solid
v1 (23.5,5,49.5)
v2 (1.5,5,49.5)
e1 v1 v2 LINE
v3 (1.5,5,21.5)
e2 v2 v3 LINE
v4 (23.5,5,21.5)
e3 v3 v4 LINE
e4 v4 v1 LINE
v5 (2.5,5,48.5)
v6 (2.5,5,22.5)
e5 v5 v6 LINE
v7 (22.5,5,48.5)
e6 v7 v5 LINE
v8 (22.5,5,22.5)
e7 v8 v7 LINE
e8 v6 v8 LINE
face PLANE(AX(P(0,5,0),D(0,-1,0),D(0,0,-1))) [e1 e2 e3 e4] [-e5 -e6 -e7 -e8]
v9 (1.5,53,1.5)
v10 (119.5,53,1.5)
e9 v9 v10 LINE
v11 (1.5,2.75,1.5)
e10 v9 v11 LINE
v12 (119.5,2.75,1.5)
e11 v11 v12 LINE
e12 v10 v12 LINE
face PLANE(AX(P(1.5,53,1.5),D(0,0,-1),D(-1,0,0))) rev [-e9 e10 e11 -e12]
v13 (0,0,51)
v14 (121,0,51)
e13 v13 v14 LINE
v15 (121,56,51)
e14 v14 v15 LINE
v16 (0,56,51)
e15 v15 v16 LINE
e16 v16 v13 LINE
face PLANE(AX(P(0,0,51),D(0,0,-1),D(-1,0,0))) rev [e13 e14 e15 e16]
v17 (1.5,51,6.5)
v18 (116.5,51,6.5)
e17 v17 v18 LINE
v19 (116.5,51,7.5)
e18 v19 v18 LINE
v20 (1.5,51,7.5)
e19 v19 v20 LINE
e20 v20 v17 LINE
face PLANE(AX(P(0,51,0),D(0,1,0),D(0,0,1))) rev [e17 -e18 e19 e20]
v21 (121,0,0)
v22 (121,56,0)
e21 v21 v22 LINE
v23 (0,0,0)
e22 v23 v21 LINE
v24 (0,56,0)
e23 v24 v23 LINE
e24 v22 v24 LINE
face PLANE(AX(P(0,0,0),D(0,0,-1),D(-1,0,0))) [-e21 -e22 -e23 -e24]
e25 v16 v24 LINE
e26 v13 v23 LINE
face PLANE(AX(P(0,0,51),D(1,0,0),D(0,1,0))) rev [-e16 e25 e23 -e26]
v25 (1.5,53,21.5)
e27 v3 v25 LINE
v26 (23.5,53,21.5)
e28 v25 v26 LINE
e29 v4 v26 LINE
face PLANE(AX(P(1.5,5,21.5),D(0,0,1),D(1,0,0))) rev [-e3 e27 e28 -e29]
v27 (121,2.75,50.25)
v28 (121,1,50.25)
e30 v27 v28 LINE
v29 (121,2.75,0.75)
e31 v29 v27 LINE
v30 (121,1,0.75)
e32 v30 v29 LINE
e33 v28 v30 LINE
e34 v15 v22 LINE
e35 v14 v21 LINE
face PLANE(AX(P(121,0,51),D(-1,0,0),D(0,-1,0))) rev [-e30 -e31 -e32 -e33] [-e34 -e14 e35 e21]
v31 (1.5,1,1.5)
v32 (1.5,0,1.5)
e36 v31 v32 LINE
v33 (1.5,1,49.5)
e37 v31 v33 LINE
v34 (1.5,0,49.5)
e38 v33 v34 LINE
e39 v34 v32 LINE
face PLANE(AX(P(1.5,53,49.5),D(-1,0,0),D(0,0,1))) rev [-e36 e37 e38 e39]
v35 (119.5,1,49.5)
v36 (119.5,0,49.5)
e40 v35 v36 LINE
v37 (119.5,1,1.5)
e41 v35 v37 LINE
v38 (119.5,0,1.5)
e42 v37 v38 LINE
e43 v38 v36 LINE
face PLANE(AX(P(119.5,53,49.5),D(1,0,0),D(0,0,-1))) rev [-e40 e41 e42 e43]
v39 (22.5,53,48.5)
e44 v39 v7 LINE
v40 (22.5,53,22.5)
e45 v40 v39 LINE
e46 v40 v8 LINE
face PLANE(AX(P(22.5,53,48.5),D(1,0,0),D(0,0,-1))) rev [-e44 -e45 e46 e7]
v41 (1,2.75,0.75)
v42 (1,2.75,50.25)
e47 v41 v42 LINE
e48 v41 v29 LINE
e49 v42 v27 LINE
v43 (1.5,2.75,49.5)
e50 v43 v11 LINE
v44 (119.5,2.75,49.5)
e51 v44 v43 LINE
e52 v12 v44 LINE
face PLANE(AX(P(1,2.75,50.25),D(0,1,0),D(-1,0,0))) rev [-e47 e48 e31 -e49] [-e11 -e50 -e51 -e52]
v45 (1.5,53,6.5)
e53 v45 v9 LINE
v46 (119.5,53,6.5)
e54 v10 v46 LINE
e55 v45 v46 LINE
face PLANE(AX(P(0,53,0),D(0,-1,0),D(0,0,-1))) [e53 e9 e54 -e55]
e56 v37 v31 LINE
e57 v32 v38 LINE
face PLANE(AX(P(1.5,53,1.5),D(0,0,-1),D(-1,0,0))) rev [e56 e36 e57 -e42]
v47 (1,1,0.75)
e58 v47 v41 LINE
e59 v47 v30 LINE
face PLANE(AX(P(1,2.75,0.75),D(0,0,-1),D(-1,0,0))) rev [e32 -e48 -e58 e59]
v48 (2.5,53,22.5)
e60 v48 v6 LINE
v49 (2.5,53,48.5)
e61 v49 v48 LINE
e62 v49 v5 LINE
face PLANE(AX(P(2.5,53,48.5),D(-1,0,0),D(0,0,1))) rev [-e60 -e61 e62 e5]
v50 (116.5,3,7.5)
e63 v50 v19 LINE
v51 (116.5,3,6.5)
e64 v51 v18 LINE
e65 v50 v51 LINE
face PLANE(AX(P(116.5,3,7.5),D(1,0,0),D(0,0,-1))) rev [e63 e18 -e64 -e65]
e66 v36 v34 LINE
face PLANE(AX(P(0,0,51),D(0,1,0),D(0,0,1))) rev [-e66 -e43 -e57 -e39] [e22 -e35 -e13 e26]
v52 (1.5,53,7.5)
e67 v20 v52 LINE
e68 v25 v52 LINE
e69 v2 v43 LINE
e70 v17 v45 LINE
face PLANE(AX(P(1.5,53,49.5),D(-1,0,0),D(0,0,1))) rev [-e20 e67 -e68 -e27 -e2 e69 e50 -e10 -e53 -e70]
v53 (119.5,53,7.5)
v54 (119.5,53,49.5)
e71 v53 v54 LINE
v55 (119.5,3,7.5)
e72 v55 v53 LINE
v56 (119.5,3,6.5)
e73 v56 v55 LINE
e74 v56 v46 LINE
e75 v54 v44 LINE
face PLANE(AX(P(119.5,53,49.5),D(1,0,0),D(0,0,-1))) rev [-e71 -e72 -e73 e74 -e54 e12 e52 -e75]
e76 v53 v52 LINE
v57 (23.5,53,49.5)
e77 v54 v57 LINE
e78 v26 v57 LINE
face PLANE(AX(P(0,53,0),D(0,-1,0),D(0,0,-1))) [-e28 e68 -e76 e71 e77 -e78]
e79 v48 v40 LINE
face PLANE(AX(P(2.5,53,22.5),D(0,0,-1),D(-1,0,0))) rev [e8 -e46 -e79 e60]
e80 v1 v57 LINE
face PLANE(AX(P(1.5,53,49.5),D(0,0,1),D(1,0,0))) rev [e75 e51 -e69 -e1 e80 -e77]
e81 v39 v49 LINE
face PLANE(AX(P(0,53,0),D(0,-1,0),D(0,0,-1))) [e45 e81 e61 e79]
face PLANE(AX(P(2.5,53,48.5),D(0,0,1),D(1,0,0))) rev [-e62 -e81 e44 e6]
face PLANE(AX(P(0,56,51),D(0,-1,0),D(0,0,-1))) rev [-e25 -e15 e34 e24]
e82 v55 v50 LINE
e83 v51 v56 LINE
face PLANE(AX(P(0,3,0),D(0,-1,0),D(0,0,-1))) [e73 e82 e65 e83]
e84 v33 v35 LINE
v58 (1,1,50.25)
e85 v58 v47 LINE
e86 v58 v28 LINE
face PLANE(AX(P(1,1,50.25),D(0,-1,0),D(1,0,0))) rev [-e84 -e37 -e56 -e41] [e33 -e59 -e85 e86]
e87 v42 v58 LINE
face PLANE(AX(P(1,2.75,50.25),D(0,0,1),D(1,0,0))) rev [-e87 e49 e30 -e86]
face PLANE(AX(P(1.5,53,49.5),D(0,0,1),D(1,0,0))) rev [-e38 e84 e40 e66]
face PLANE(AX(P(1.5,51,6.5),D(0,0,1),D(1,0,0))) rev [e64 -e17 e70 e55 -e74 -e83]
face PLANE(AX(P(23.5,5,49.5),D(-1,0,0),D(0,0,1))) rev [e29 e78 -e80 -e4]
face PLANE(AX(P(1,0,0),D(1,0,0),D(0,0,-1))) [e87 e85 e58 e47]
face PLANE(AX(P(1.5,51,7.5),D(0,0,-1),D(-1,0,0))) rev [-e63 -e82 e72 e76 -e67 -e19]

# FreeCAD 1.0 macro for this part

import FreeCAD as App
import Part
import Sketcher
Q = App.Units.Quantity

doc = App.newDocument("Part")
body = doc.addObject("PartDesign::Body", "Body")

# Sketch on XY plane
sketch1 = doc.addObject("Sketcher::SketchObject", "Sketch")
body.addObject(sketch1)
sketch1.AttachmentSupport = (doc.XY_Plane, [""])
sketch1.MapMode = "FlatFace"
sketch1.addGeometry([
    Part.LineSegment(App.Vector(0, 56, 0), App.Vector(0, 0, 0)),
    Part.LineSegment(App.Vector(0, 0, 0), App.Vector(121, 0, 0)),
    Part.LineSegment(App.Vector(121, 0, 0), App.Vector(121, 56, 0)),
    Part.LineSegment(App.Vector(121, 56, 0), App.Vector(0, 56, 0)),
], False)
sketch1.addConstraint([
    Sketcher.Constraint("Coincident", 0, 2, 1, 1),
    Sketcher.Constraint("Coincident", 1, 2, 2, 1),
    Sketcher.Constraint("Coincident", 2, 2, 3, 1),
    Sketcher.Constraint("Coincident", 3, 2, 0, 1),
    Sketcher.Constraint("Vertical", 0),
    Sketcher.Constraint("Horizontal", 1),
    Sketcher.Constraint("Vertical", 2),
    Sketcher.Constraint("Horizontal", 3),
    Sketcher.Constraint("Coincident", 0, 2, -1, 1),
    Sketcher.Constraint("DistanceX", 1, 1, 1, 2, Q("121 mm")),
    Sketcher.Constraint("DistanceY", 0, 2, 0, 1, Q("56 mm")),
])
pad1 = doc.addObject("PartDesign::Pad", "Pad")
body.addObject(pad1)
pad1.Profile = sketch1
pad1.Length = 51

# Sketch on XZ plane
sketch2 = doc.addObject("Sketcher::SketchObject", "Sketch001")
body.addObject(sketch2)
sketch2.AttachmentSupport = (doc.XZ_Plane, [""])
sketch2.MapMode = "FlatFace"
sketch2.addGeometry([
    Part.LineSegment(App.Vector(2, 50, 0), App.Vector(2, 2, 0)),
    Part.LineSegment(App.Vector(2, 2, 0), App.Vector(120, 2, 0)),
    Part.LineSegment(App.Vector(120, 2, 0), App.Vector(120, 50, 0)),
    Part.LineSegment(App.Vector(120, 50, 0), App.Vector(2, 50, 0)),
], False)
sketch2.addConstraint([
    Sketcher.Constraint("Coincident", 0, 2, 1, 1),
    Sketcher.Constraint("Coincident", 1, 2, 2, 1),
    Sketcher.Constraint("Coincident", 2, 2, 3, 1),
    Sketcher.Constraint("Coincident", 3, 2, 0, 1),
    Sketcher.Constraint("Vertical", 0),
    Sketcher.Constraint("Horizontal", 1),
    Sketcher.Constraint("Vertical", 2),
    Sketcher.Constraint("Horizontal", 3),
    Sketcher.Constraint("DistanceX", 1, 1, 1, 2, Q("118 mm")),
    Sketcher.Constraint("DistanceY", 0, 2, 0, 1, Q("48 mm")),
    Sketcher.Constraint("DistanceX", -1, 1, 0, 2, Q("1.5 mm")),
    Sketcher.Constraint("DistanceY", -1, 1, 0, 2, Q("1.5 mm")),
])
pocket1 = doc.addObject("PartDesign::Pocket", "Pocket")
body.addObject(pocket1)
pocket1.Profile = sketch2
pocket1.Length = 53

# Sketch on XZ plane
sketch3 = doc.addObject("Sketcher::SketchObject", "Sketch002")
body.addObject(sketch3)
sketch3.AttachmentSupport = (doc.XZ_Plane, [""])
sketch3.MapMode = "FlatFace"
sketch3.AttachmentOffset = App.Placement(App.Vector(0, 0, -53), App.Rotation())
sketch3.addGeometry([
    Part.LineSegment(App.Vector(2, 50, 0), App.Vector(2, 22, 0)),
    Part.LineSegment(App.Vector(2, 22, 0), App.Vector(24, 22, 0)),
    Part.LineSegment(App.Vector(24, 22, 0), App.Vector(24, 50, 0)),
    Part.LineSegment(App.Vector(24, 50, 0), App.Vector(2, 50, 0)),
], False)
sketch3.addConstraint([
    Sketcher.Constraint("Coincident", 0, 2, 1, 1),
    Sketcher.Constraint("Coincident", 1, 2, 2, 1),
    Sketcher.Constraint("Coincident", 2, 2, 3, 1),
    Sketcher.Constraint("Coincident", 3, 2, 0, 1),
    Sketcher.Constraint("Vertical", 0),
    Sketcher.Constraint("Horizontal", 1),
    Sketcher.Constraint("Vertical", 2),
    Sketcher.Constraint("Horizontal", 3),
    Sketcher.Constraint("DistanceX", 1, 1, 1, 2, Q("22 mm")),
    Sketcher.Constraint("DistanceY", 0, 2, 0, 1, Q("28 mm")),
    Sketcher.Constraint("DistanceX", -1, 1, 0, 2, Q("1.5 mm")),
    Sketcher.Constraint("DistanceY", -1, 1, 0, 2, Q("21.5 mm")),
])
pad2 = doc.addObject("PartDesign::Pad", "Pad001")
body.addObject(pad2)
pad2.Profile = sketch3
pad2.Length = 48

# Sketch on XZ plane
sketch4 = doc.addObject("Sketcher::SketchObject", "Sketch003")
body.addObject(sketch4)
sketch4.AttachmentSupport = (doc.XZ_Plane, [""])
sketch4.MapMode = "FlatFace"
sketch4.AttachmentOffset = App.Placement(App.Vector(0, 0, -5), App.Rotation())
sketch4.addGeometry([
    Part.LineSegment(App.Vector(2, 48, 0), App.Vector(2, 22, 0)),
    Part.LineSegment(App.Vector(2, 22, 0), App.Vector(22, 22, 0)),
    Part.LineSegment(App.Vector(22, 22, 0), App.Vector(22, 48, 0)),
    Part.LineSegment(App.Vector(22, 48, 0), App.Vector(2, 48, 0)),
], False)
sketch4.addConstraint([
    Sketcher.Constraint("Coincident", 0, 2, 1, 1),
    Sketcher.Constraint("Coincident", 1, 2, 2, 1),
    Sketcher.Constraint("Coincident", 2, 2, 3, 1),
    Sketcher.Constraint("Coincident", 3, 2, 0, 1),
    Sketcher.Constraint("Vertical", 0),
    Sketcher.Constraint("Horizontal", 1),
    Sketcher.Constraint("Vertical", 2),
    Sketcher.Constraint("Horizontal", 3),
    Sketcher.Constraint("DistanceX", 1, 1, 1, 2, Q("20 mm")),
    Sketcher.Constraint("DistanceY", 0, 2, 0, 1, Q("26 mm")),
    Sketcher.Constraint("DistanceX", -1, 1, 0, 2, Q("2.5 mm")),
    Sketcher.Constraint("DistanceY", -1, 1, 0, 2, Q("22.5 mm")),
])
pocket2 = doc.addObject("PartDesign::Pocket", "Pocket001")
body.addObject(pocket2)
pocket2.Profile = sketch4
pocket2.Length = 48

# Sketch on XZ plane
sketch5 = doc.addObject("Sketcher::SketchObject", "Sketch004")
body.addObject(sketch5)
sketch5.AttachmentSupport = (doc.XZ_Plane, [""])
sketch5.MapMode = "FlatFace"
sketch5.AttachmentOffset = App.Placement(App.Vector(0, 0, -53), App.Rotation())
sketch5.addGeometry([
    Part.LineSegment(App.Vector(1.5, 7.5, 0), App.Vector(1.5, 6.5, 0)),
    Part.LineSegment(App.Vector(1.5, 6.5, 0), App.Vector(119.5, 6.5, 0)),
    Part.LineSegment(App.Vector(119.5, 6.5, 0), App.Vector(119.5, 7.5, 0)),
    Part.LineSegment(App.Vector(119.5, 7.5, 0), App.Vector(1.5, 7.5, 0)),
], False)
sketch5.addConstraint([
    Sketcher.Constraint("Coincident", 0, 2, 1, 1),
    Sketcher.Constraint("Coincident", 1, 2, 2, 1),
    Sketcher.Constraint("Coincident", 2, 2, 3, 1),
    Sketcher.Constraint("Coincident", 3, 2, 0, 1),
    Sketcher.Constraint("Vertical", 0),
    Sketcher.Constraint("Horizontal", 1),
    Sketcher.Constraint("Vertical", 2),
    Sketcher.Constraint("Horizontal", 3),
    Sketcher.Constraint("DistanceX", 1, 1, 1, 2, Q("118 mm")),
    Sketcher.Constraint("DistanceY", 0, 2, 0, 1, Q("1 mm")),
    Sketcher.Constraint("DistanceX", -1, 1, 0, 2, Q("1.5 mm")),
    Sketcher.Constraint("DistanceY", -1, 1, 0, 2, Q("6.5 mm")),
])
pad3 = doc.addObject("PartDesign::Pad", "Pad002")
body.addObject(pad3)
pad3.Profile = sketch5
pad3.Length = 2

# Sketch on XZ plane
sketch6 = doc.addObject("Sketcher::SketchObject", "Sketch005")
body.addObject(sketch6)
sketch6.AttachmentSupport = (doc.XZ_Plane, [""])
sketch6.MapMode = "FlatFace"
sketch6.AttachmentOffset = App.Placement(App.Vector(0, 0, -51), App.Rotation())
sketch6.addGeometry([
    Part.LineSegment(App.Vector(116.5, 7.5, 0), App.Vector(116.5, 6.5, 0)),
    Part.LineSegment(App.Vector(116.5, 6.5, 0), App.Vector(119.5, 6.5, 0)),
    Part.LineSegment(App.Vector(119.5, 6.5, 0), App.Vector(119.5, 7.5, 0)),
    Part.LineSegment(App.Vector(119.5, 7.5, 0), App.Vector(116.5, 7.5, 0)),
], False)
sketch6.addConstraint([
    Sketcher.Constraint("Coincident", 0, 2, 1, 1),
    Sketcher.Constraint("Coincident", 1, 2, 2, 1),
    Sketcher.Constraint("Coincident", 2, 2, 3, 1),
    Sketcher.Constraint("Coincident", 3, 2, 0, 1),
    Sketcher.Constraint("Vertical", 0),
    Sketcher.Constraint("Horizontal", 1),
    Sketcher.Constraint("Vertical", 2),
    Sketcher.Constraint("Horizontal", 3),
    Sketcher.Constraint("DistanceX", 1, 1, 1, 2, Q("3 mm")),
    Sketcher.Constraint("DistanceY", 0, 2, 0, 1, Q("1 mm")),
    Sketcher.Constraint("DistanceX", -1, 1, 0, 2, Q("116.5 mm")),
    Sketcher.Constraint("DistanceY", -1, 1, 0, 2, Q("6.5 mm")),
])
pad4 = doc.addObject("PartDesign::Pad", "Pad003")
body.addObject(pad4)
pad4.Profile = sketch6
pad4.Length = 48

# Sketch on YZ plane
sketch7 = doc.addObject("Sketcher::SketchObject", "Sketch006")
body.addObject(sketch7)
sketch7.AttachmentSupport = (doc.YZ_Plane, [""])
sketch7.MapMode = "FlatFace"
sketch7.AttachmentOffset = App.Placement(App.Vector(0, 0, 121), App.Rotation())
sketch7.addGeometry([
    Part.LineSegment(App.Vector(2.8, 50.2, 0), App.Vector(1, 50.2, 0)),
    Part.LineSegment(App.Vector(1, 50.2, 0), App.Vector(1, 0.8, 0)),
    Part.LineSegment(App.Vector(1, 0.8, 0), App.Vector(2.8, 0.8, 0)),
    Part.LineSegment(App.Vector(2.8, 0.8, 0), App.Vector(2.8, 50.2, 0)),
], False)
sketch7.addConstraint([
    Sketcher.Constraint("Coincident", 0, 2, 1, 1),
    Sketcher.Constraint("Coincident", 1, 2, 2, 1),
    Sketcher.Constraint("Coincident", 2, 2, 3, 1),
    Sketcher.Constraint("Coincident", 3, 2, 0, 1),
    Sketcher.Constraint("Horizontal", 0),
    Sketcher.Constraint("Vertical", 1),
    Sketcher.Constraint("Horizontal", 2),
    Sketcher.Constraint("Vertical", 3),
    Sketcher.Constraint("DistanceY", 1, 2, 1, 1, Q("49.5 mm")),
    Sketcher.Constraint("DistanceX", -1, 1, 0, 2, Q("1 mm")),
    Sketcher.Constraint("DistanceX", 0, 2, 0, 1, Q("1.75 mm")),
    Sketcher.Constraint("DistanceY", -1, 1, 0, 2, Q("50.25 mm")),
])
pocket3 = doc.addObject("PartDesign::Pocket", "Pocket002")
body.addObject(pocket3)
pocket3.Profile = sketch7
pocket3.Length = 120

doc.recompute()
